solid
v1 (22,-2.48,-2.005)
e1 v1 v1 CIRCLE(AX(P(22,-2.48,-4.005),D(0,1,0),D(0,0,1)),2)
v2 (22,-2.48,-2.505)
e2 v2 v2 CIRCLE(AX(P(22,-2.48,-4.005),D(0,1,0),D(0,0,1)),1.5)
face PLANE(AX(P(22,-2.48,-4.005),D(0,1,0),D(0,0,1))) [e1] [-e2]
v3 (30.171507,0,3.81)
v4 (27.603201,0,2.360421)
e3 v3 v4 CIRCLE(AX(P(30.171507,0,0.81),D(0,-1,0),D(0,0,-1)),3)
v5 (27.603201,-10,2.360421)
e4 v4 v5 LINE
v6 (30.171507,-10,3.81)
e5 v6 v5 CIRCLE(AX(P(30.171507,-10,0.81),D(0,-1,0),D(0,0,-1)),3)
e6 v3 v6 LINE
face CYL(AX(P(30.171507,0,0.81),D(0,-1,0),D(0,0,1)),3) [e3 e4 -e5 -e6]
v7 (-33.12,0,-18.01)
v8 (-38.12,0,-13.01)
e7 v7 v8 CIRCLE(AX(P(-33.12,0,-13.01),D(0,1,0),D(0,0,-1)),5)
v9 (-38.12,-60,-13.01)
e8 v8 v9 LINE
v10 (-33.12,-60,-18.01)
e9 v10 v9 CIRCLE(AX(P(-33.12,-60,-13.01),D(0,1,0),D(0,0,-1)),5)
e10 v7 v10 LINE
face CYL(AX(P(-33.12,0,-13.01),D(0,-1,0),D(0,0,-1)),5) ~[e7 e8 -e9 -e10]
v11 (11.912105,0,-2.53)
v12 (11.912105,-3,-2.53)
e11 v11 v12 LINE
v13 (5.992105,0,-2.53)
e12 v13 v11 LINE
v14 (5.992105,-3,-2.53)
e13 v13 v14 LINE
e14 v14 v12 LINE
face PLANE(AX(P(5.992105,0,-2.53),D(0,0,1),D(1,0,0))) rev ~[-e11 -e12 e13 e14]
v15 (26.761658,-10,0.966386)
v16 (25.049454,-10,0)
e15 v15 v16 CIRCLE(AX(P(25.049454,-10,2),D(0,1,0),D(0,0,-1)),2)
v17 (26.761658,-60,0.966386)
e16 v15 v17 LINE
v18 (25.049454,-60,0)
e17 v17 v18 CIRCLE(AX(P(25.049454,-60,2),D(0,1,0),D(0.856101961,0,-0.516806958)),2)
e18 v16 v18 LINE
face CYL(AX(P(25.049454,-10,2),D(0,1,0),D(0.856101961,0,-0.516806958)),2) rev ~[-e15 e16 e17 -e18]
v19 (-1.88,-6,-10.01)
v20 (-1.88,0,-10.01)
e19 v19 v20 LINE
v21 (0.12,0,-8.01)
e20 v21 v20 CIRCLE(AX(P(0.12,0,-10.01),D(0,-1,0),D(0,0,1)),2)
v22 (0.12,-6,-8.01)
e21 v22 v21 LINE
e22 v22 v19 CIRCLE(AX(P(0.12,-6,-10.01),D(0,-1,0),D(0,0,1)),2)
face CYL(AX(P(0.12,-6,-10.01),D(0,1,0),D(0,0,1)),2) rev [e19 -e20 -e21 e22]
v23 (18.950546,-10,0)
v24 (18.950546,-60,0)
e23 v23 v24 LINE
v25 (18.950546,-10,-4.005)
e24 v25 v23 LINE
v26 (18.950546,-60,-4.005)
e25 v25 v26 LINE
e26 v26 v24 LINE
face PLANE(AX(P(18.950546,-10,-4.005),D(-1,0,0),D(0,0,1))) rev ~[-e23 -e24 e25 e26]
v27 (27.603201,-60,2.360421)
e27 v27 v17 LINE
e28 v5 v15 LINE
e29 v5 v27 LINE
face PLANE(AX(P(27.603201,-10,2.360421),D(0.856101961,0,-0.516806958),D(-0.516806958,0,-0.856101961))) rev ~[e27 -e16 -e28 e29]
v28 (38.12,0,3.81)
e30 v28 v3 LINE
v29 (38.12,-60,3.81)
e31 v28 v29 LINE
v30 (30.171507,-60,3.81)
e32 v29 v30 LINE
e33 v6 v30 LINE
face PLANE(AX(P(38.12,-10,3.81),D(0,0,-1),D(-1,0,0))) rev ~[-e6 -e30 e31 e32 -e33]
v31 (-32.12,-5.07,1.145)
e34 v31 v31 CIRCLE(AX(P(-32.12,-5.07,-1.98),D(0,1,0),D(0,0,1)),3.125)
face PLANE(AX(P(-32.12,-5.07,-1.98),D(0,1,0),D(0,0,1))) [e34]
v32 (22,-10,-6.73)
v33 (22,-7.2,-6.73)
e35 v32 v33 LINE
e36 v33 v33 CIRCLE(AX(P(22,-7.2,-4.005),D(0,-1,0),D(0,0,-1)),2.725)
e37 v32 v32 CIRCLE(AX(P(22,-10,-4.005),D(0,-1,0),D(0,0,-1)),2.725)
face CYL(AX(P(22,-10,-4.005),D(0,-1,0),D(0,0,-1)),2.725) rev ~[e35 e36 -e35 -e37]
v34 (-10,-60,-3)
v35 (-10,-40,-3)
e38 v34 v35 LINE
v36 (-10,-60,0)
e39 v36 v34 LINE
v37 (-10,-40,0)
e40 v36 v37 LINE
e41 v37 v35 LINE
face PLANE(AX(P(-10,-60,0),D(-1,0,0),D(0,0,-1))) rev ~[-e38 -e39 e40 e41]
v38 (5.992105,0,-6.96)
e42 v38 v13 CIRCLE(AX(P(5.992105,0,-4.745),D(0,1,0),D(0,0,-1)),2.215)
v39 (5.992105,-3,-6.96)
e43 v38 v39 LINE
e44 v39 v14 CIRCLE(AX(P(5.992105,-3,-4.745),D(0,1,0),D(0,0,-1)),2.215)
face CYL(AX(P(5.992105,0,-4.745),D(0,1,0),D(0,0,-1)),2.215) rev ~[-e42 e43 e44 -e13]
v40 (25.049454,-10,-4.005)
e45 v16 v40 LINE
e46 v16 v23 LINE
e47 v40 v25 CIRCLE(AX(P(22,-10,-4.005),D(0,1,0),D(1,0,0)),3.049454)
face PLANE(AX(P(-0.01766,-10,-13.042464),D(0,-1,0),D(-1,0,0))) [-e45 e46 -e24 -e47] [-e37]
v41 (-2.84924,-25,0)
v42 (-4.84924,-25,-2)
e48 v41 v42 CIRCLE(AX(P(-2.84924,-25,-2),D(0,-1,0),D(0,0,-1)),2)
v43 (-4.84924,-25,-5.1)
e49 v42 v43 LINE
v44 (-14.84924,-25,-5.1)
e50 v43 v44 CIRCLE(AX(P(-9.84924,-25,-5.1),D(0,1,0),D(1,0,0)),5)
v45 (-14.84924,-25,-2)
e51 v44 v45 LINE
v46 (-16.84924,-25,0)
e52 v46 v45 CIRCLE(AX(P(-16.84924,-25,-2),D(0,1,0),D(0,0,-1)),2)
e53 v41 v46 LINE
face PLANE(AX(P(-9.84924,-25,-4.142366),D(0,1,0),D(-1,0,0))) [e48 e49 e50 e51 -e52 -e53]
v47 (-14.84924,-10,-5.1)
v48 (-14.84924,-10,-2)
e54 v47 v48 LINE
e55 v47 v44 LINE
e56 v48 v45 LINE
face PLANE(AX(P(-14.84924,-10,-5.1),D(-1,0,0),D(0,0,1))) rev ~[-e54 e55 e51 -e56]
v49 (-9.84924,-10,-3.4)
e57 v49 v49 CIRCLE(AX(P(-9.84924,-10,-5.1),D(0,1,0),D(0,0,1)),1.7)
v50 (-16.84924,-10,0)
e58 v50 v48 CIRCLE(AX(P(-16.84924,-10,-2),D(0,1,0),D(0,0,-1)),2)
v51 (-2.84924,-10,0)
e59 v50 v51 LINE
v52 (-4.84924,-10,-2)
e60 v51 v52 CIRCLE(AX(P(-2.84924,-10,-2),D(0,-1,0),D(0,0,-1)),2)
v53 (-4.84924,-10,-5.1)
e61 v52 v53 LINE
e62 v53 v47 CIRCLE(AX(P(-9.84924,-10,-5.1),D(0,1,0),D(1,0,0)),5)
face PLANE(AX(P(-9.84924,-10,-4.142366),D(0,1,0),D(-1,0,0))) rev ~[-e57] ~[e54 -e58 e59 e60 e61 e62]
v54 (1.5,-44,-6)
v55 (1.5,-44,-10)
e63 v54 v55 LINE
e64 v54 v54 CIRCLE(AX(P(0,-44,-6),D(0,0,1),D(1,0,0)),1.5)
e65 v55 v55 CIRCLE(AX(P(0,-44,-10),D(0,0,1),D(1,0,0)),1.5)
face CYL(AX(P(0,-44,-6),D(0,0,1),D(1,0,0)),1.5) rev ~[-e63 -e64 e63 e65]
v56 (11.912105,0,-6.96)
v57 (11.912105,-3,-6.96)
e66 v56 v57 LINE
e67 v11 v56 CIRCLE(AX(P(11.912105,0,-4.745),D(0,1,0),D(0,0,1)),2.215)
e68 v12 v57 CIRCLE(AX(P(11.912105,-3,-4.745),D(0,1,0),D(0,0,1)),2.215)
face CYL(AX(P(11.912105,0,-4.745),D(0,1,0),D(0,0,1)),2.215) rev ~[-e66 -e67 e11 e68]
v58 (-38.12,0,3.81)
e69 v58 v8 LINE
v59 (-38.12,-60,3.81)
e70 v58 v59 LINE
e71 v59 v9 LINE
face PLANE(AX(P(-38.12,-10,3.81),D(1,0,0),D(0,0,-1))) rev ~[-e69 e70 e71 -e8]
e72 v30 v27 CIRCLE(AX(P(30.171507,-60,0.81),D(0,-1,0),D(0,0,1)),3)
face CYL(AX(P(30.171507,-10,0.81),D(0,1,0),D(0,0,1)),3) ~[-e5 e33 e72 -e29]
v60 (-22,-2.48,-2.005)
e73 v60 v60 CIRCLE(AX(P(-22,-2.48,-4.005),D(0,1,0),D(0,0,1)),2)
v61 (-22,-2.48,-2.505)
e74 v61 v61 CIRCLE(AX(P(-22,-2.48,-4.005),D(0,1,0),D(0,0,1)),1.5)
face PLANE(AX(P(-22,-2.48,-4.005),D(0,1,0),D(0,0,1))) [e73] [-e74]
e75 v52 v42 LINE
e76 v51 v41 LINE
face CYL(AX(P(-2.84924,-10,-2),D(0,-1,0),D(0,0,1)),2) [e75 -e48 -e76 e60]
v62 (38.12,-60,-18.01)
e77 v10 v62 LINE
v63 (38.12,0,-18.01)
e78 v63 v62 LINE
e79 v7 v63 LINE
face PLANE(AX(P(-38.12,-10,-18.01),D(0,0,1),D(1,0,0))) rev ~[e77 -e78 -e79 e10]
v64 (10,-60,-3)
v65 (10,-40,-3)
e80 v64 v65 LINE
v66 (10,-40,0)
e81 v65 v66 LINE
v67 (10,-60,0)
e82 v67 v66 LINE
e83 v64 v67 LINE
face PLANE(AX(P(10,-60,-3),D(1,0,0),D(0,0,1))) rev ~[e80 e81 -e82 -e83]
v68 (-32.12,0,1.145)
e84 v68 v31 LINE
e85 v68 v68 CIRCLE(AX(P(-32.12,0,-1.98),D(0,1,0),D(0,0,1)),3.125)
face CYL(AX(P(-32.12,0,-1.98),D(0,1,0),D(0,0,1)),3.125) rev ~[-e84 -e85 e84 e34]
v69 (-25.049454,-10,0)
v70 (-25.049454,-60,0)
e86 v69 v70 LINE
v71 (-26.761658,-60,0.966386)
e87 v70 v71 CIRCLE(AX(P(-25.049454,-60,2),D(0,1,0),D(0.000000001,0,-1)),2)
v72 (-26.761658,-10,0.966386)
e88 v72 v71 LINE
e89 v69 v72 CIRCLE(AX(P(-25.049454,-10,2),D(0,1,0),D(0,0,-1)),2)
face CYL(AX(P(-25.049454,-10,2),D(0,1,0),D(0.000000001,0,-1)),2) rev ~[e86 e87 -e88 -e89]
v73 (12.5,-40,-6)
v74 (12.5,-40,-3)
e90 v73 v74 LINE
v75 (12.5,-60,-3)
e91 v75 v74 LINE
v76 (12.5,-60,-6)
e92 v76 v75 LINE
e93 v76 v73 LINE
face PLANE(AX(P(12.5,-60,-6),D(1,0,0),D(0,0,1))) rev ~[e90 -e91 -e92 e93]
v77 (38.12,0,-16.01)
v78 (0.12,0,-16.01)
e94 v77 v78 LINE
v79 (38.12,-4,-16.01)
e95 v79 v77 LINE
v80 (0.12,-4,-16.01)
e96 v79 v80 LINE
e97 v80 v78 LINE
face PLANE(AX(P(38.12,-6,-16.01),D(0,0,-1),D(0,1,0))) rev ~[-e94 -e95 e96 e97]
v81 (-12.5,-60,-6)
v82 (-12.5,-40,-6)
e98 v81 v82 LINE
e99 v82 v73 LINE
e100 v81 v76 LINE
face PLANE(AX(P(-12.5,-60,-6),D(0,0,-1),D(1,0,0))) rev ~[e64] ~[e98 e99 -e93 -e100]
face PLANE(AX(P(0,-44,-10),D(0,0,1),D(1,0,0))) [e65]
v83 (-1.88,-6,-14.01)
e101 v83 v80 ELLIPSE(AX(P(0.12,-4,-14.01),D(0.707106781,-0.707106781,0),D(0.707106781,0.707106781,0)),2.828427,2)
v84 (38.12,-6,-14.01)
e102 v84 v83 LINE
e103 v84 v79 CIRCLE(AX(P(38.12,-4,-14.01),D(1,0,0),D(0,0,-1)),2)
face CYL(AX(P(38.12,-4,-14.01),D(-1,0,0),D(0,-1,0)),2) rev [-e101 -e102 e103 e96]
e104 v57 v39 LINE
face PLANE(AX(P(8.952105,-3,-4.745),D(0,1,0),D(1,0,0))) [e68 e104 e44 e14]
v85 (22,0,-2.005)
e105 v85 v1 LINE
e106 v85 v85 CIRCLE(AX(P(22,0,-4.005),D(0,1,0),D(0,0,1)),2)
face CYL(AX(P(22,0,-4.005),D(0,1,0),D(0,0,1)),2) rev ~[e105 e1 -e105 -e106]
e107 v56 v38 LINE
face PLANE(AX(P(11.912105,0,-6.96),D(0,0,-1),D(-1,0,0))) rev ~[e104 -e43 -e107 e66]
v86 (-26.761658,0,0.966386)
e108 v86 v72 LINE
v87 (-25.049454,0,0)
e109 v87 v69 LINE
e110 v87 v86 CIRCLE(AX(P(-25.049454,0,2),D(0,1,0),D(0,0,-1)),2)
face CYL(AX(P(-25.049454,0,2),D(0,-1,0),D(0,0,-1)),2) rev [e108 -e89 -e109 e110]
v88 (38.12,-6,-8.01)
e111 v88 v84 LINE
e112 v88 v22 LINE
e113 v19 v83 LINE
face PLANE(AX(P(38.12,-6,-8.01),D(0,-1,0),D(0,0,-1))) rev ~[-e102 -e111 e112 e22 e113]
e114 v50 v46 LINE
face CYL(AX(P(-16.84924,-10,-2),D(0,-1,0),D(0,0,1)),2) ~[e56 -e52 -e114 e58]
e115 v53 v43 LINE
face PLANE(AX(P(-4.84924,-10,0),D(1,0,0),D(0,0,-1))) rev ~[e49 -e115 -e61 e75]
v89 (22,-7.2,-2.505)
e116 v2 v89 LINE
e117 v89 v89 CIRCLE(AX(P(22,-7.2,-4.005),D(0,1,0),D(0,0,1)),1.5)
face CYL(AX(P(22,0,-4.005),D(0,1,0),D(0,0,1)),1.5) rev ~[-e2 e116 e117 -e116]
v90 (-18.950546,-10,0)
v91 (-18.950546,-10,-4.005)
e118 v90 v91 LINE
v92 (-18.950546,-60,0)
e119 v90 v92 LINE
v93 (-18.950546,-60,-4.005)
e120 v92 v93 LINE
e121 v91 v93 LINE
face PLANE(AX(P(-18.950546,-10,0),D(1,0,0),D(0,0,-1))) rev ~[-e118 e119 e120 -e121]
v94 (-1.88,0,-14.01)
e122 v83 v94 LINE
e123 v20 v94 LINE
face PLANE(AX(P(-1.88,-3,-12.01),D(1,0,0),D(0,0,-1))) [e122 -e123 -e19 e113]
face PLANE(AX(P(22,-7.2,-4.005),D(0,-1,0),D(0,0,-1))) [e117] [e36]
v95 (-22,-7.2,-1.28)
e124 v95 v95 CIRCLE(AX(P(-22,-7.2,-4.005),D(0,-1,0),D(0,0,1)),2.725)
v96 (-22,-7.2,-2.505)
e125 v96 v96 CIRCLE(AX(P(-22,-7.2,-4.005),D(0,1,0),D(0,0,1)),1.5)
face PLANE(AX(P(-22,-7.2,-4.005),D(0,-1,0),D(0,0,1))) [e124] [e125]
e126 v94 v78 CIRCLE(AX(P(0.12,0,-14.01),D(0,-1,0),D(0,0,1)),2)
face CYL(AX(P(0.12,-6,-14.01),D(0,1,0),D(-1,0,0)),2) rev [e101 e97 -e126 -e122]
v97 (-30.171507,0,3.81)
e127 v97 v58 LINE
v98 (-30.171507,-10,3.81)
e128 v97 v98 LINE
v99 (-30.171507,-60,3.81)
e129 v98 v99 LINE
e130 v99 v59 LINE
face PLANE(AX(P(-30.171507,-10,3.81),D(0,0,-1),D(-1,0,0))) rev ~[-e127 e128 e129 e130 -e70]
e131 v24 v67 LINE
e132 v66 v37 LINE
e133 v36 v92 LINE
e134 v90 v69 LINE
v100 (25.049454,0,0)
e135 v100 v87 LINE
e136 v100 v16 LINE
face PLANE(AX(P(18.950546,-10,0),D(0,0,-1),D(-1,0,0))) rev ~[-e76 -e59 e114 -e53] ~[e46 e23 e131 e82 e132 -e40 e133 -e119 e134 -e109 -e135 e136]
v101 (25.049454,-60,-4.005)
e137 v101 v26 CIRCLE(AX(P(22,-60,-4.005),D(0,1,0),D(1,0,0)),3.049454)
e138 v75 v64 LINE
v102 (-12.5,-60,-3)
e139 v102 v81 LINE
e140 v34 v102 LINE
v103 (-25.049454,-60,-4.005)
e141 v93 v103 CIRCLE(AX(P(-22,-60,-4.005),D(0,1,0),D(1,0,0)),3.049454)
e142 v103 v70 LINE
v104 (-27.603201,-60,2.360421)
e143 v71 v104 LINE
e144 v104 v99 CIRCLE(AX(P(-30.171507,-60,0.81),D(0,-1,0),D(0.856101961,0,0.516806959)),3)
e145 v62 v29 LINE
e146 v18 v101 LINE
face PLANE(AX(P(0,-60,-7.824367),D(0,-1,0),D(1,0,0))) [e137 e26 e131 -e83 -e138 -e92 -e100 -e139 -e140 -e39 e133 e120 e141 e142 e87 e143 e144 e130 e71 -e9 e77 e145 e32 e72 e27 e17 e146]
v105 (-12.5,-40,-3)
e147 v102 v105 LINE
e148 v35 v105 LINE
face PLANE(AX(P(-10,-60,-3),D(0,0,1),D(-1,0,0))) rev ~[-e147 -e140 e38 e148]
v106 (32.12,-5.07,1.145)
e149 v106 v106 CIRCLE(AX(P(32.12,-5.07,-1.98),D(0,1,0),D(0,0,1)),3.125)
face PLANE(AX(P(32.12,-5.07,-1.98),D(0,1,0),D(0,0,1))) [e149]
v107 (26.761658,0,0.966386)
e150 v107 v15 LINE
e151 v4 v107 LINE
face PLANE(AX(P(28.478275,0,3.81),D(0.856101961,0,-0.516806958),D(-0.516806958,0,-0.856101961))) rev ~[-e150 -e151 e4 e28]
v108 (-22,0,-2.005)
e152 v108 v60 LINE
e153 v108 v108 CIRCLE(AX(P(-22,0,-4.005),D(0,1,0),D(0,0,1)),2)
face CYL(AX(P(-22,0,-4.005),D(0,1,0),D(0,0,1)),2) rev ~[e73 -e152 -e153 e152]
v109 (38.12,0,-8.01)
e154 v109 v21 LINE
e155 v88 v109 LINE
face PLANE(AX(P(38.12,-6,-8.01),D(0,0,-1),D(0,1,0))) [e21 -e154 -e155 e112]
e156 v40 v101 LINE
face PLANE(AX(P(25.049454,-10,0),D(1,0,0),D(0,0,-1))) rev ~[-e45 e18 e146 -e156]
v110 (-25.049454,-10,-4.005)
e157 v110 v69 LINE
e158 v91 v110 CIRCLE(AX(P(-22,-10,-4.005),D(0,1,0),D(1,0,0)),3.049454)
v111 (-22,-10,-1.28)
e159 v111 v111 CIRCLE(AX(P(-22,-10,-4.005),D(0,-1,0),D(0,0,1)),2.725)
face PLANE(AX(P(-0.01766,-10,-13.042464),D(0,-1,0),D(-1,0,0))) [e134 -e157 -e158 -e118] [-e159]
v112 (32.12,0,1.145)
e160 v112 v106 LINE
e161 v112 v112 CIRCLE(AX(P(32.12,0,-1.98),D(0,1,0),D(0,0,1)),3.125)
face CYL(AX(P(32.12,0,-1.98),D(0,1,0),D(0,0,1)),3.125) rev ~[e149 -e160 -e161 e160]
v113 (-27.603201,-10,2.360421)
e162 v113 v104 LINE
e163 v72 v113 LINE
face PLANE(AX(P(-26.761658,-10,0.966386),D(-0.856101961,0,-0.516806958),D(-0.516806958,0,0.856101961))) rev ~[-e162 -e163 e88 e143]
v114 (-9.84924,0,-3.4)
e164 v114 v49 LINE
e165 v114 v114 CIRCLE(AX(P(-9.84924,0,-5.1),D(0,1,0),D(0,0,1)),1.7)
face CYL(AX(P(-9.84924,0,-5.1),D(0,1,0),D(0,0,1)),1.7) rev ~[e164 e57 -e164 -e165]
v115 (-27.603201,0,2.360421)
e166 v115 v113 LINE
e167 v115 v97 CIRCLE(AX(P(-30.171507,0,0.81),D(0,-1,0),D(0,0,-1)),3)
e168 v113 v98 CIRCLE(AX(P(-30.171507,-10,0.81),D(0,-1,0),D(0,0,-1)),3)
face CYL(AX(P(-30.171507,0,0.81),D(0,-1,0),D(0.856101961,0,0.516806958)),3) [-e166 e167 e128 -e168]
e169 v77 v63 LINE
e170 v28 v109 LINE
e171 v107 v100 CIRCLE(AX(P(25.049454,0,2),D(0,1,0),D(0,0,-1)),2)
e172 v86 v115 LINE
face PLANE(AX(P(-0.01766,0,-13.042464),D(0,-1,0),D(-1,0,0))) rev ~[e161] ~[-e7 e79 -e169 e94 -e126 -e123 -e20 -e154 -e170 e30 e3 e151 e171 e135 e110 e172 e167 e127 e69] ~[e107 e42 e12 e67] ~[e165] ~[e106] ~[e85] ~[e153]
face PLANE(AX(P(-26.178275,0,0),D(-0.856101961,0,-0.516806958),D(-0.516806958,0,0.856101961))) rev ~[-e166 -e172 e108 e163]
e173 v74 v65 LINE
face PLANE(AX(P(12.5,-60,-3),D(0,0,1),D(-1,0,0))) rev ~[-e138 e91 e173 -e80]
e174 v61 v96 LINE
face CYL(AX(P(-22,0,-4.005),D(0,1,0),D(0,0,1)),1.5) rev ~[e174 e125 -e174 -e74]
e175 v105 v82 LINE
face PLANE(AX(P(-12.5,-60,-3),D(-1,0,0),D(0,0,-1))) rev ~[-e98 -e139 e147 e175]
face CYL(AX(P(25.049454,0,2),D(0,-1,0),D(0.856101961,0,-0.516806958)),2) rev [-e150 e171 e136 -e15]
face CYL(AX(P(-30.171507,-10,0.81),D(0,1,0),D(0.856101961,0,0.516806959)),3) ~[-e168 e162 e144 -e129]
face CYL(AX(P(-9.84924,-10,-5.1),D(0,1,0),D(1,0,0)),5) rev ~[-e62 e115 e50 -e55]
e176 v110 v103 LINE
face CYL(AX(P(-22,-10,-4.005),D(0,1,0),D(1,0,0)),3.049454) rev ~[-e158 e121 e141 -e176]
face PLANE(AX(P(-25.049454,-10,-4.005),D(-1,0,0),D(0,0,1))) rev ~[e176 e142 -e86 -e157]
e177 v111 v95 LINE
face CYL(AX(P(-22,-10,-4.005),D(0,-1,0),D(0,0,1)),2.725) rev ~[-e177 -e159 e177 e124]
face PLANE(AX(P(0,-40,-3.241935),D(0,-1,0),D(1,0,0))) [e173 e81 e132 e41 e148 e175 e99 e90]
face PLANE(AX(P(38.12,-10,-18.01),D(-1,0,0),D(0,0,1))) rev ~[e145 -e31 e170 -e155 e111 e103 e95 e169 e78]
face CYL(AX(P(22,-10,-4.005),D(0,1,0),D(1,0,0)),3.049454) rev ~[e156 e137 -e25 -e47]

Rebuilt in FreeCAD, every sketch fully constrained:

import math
import FreeCAD as App
import Part
import Sketcher
from FreeCAD import Vector


def edges_at(feature, points):
    """Names of the edges that pass closest to the given points."""
    edges = feature.Shape.Edges
    near = lambda p: min(range(len(edges)), key=lambda i: edges[i].distToShape(Part.Vertex(*p))[0])
    return sorted({f"Edge{near(p) + 1}" for p in points})


def add_polygon(sketch, points):
    """Adds a closed chain of lines whose ends are joined by coincident constraints."""
    first, n = sketch.GeometryCount, len(points)
    for a, b in zip(points, points[1:] + points[:1]):
        sketch.addGeometry(Part.LineSegment(App.Vector(*a, 0), App.Vector(*b, 0)), False)
    for i in range(n):
        sketch.addConstraint(Sketcher.Constraint("Coincident", first + i, 2, first + (i + 1) % n, 1))

doc = App.newDocument("Part")
body = doc.addObject("PartDesign::Body", "Body")

sketch1 = body.newObject("Sketcher::SketchObject", "Sketch")
sketch1.AttachmentSupport = (doc.getObject("XZ_Plane"), [""])
sketch1.MapMode = "FlatFace"
sketch1.addGeometry([
    Part.ArcOfCircle(Part.Circle(Vector(-9.8, -5.1, 0), Vector(0, 0, 1), 4.2), math.radians(-112), math.radians(-68)),
    Part.ArcOfCircle(Part.Circle(Vector(-16.4, -21.4, 0), Vector(0, 0, 1), 13.4), math.radians(68), math.radians(90)),
    Part.LineSegment(Vector(-16.4, -8, 0), Vector(-38.1, -8, 0)),
    Part.LineSegment(Vector(-38.1, -8, 0), Vector(-38.1, 3.8, 0)),
    Part.LineSegment(Vector(-38.1, 3.8, 0), Vector(-28.5, 3.8, 0)),
    Part.LineSegment(Vector(-28.5, 3.8, 0), Vector(-26.2, 0, 0)),
    Part.LineSegment(Vector(-26.2, 0, 0), Vector(26.2, 0, 0)),
    Part.LineSegment(Vector(26.2, 0, 0), Vector(28.5, 3.8, 0)),
    Part.LineSegment(Vector(28.5, 3.8, 0), Vector(38.1, 3.8, 0)),
    Part.LineSegment(Vector(38.1, 3.8, 0), Vector(38.1, -8, 0)),
    Part.LineSegment(Vector(38.1, -8, 0), Vector(-3.3, -8, 0)),
    Part.ArcOfCircle(Part.Circle(Vector(-3.3, -21.4, 0), Vector(0, 0, 1), 13.4), math.radians(90), math.radians(112)),
], False)
sketch1.addConstraint([
    Sketcher.Constraint("Tangent", 0, 1, 1, 1),
    Sketcher.Constraint("Tangent", 1, 2, 2, 1),
    Sketcher.Constraint("Coincident", 2, 2, 3, 1),
    Sketcher.Constraint("Coincident", 3, 2, 4, 1),
    Sketcher.Constraint("Coincident", 4, 2, 5, 1),
    Sketcher.Constraint("Coincident", 5, 2, 6, 1),
    Sketcher.Constraint("Coincident", 6, 2, 7, 1),
    Sketcher.Constraint("Coincident", 7, 2, 8, 1),
    Sketcher.Constraint("Coincident", 8, 2, 9, 1),
    Sketcher.Constraint("Coincident", 9, 2, 10, 1),
    Sketcher.Constraint("Tangent", 10, 2, 11, 1),
    Sketcher.Constraint("Tangent", 11, 2, 0, 2),
    Sketcher.Constraint("Horizontal", 2),
    Sketcher.Constraint("Vertical", 3),
    Sketcher.Constraint("Horizontal", 4),
    Sketcher.Constraint("Horizontal", 6),
    Sketcher.Constraint("Horizontal", 8),
    Sketcher.Constraint("Vertical", 9),
    Sketcher.Constraint("Horizontal", 10),
    Sketcher.Constraint("Equal", 1, 11),
    Sketcher.Constraint("Symmetric", 5, 2, 6, 2, -1, 1),
    Sketcher.Constraint("Symmetric", 4, 2, 7, 2, -2),
    Sketcher.Constraint("Symmetric", 2, 2, 9, 2, -2),
    Sketcher.Constraint("Radius", 0, 4.18),
    Sketcher.Constraint("DistanceX", 1, 3, 0, 1, 5.0),
    Sketcher.Constraint("DistanceY", 3, 1, 3, 2, 11.82),
    Sketcher.Constraint("DistanceY", 0, 3, -1, 1, 5.1),
    Sketcher.Constraint("DistanceX", 4, 2, 5, 2, 2.3),
    Sketcher.Constraint("DistanceY", 1, 2, -1, 1, 8.01),
    Sketcher.Constraint("DistanceX", 2, 2, -1, 1, 38.12),
    Sketcher.Constraint("DistanceX", 6, 1, 6, 2, 52.35655),
    Sketcher.Constraint("DistanceX", 2, 2, 2, 1, 21.710755),
])
pad1 = body.newObject("PartDesign::Pad", "Pad")
pad1.Profile = sketch1
pad1.Length = 10
doc.recompute()

fillet = body.newObject("PartDesign::Fillet", "Fillet")
fillet.Base = (pad1, edges_at(pad1, [(28.478, -5, 3.81), (-28.478, -5, 3.81)]))
fillet.Radius = 3
doc.recompute()

fillet2 = body.newObject("PartDesign::Fillet", "Fillet001")
fillet2.Base = (fillet, edges_at(fillet, [(26.178, -5, 0), (-26.178, -5, 0)]))
fillet2.Radius = 2

sketch2 = body.newObject("Sketcher::SketchObject", "Sketch001")
sketch2.AttachmentSupport = (doc.getObject("XZ_Plane"), [""])
sketch2.MapMode = "FlatFace"
sketch2.addGeometry([
    Part.Circle(Vector(32.1, -2, 0), Vector(0, 0, 1), 3.1),
    Part.Circle(Vector(-32.1, -2, 0), Vector(0, 0, 1), 3.1),
], False)
sketch2.addConstraint([
    Sketcher.Constraint("Equal", 0, 1),
    Sketcher.Constraint("Symmetric", 0, 3, 1, 3, -2),
    Sketcher.Constraint("Diameter", 0, 6.25),
    Sketcher.Constraint("DistanceX", -1, 1, 0, 3, 32.12),
    Sketcher.Constraint("DistanceY", 0, 3, -1, 1, 1.98),
])
pocket1 = body.newObject("PartDesign::Pocket", "Pocket")
pocket1.Profile = sketch2
pocket1.Length = 5.07
pocket1.Reversed = True

sketch3 = body.newObject("Sketcher::SketchObject", "Sketch002")
sketch3.AttachmentSupport = (doc.getObject("XZ_Plane"), [""])
sketch3.MapMode = "FlatFace"
sketch3.addGeometry(Part.Circle(Vector(-9.8, -5.1, 0), Vector(0, 0, 1), 1.7), False)
sketch3.addConstraint([
    Sketcher.Constraint("Diameter", 0, 3.4),
    Sketcher.Constraint("DistanceY", 0, 3, -1, 1, 5.1),
    Sketcher.Constraint("DistanceX", 0, 3, -1, 1, 9.84924),
])
pocket2 = body.newObject("PartDesign::Pocket", "Pocket001")
pocket2.Profile = sketch3
pocket2.Length = 10
pocket2.Reversed = True

sketch4 = body.newObject("Sketcher::SketchObject", "Sketch003")
sketch4.AttachmentSupport = (doc.getObject("XZ_Plane"), [""])
sketch4.MapMode = "FlatFace"
sketch4.addGeometry([
    Part.LineSegment(Vector(6, -2.5, 0), Vector(11.9, -2.5, 0)),
    Part.ArcOfCircle(Part.Circle(Vector(11.9, -4.7, 0), Vector(0, 0, 1), 2.2), math.radians(-90), math.radians(90)),
    Part.LineSegment(Vector(11.9, -7, 0), Vector(6, -7, 0)),
    Part.ArcOfCircle(Part.Circle(Vector(6, -4.7, 0), Vector(0, 0, 1), 2.2), math.radians(90), math.radians(270)),
], False)
sketch4.addConstraint([
    Sketcher.Constraint("Tangent", 0, 2, 1, 2),
    Sketcher.Constraint("Tangent", 1, 1, 2, 1),
    Sketcher.Constraint("Tangent", 2, 2, 3, 2),
    Sketcher.Constraint("Tangent", 3, 1, 0, 1),
    Sketcher.Constraint("Horizontal", 0),
    Sketcher.Constraint("Horizontal", 2),
    Sketcher.Constraint("Radius", 1, 2.215),
    Sketcher.Constraint("DistanceX", 0, 1, 0, 2, 5.92),
    Sketcher.Constraint("DistanceY", 0, 2, -1, 1, 2.53),
    Sketcher.Constraint("DistanceX", -1, 1, 1, 3, 11.912105),
])
pocket3 = body.newObject("PartDesign::Pocket", "Pocket002")
pocket3.Profile = sketch4
pocket3.Length = 3
pocket3.Reversed = True

sketch5 = body.newObject("Sketcher::SketchObject", "Sketch004")
sketch5.AttachmentSupport = (doc.getObject("XZ_Plane"), [""])
sketch5.MapMode = "FlatFace"
sketch5.addGeometry([
    Part.Circle(Vector(-22, -4, 0), Vector(0, 0, 1), 2),
    Part.Circle(Vector(22, -4, 0), Vector(0, 0, 1), 2),
], False)
sketch5.addConstraint([
    Sketcher.Constraint("Equal", 0, 1),
    Sketcher.Constraint("Symmetric", 0, 3, 1, 3, -2),
    Sketcher.Constraint("Diameter", 0, 4.0),
    Sketcher.Constraint("DistanceX", 0, 3, -1, 1, 22.0),
    Sketcher.Constraint("DistanceY", 0, 3, -1, 1, 4.005),
])
pocket4 = body.newObject("PartDesign::Pocket", "Pocket003")
pocket4.Profile = sketch5
pocket4.Length = 2.48
pocket4.Reversed = True

sketch6 = body.newObject("Sketcher::SketchObject", "Sketch005")
sketch6.AttachmentSupport = (doc.getObject("XZ_Plane"), [""])
sketch6.MapMode = "FlatFace"
sketch6.addGeometry([
    Part.Circle(Vector(-22, -4, 0), Vector(0, 0, 1), 1.5),
    Part.Circle(Vector(22, -4, 0), Vector(0, 0, 1), 1.5),
], False)
sketch6.addConstraint([
    Sketcher.Constraint("Equal", 0, 1),
    Sketcher.Constraint("Symmetric", 0, 3, 1, 3, -2),
    Sketcher.Constraint("Diameter", 0, 3.0),
    Sketcher.Constraint("DistanceX", 0, 3, -1, 1, 22.0),
    Sketcher.Constraint("DistanceY", 0, 3, -1, 1, 4.005),
])
pocket5 = body.newObject("PartDesign::Pocket", "Pocket004")
pocket5.Profile = sketch6
pocket5.Length = 10
pocket5.Reversed = True

sketch7 = body.newObject("Sketcher::SketchObject", "Sketch006")
sketch7.AttachmentSupport = (doc.getObject("XZ_Plane"), [""])
sketch7.MapMode = "FlatFace"
sketch7.AttachmentOffset = App.Placement(Vector(0, 0, 10), App.Rotation())
sketch7.addGeometry([
    Part.Circle(Vector(22, -4, 0), Vector(0, 0, 1), 2.7),
    Part.Circle(Vector(-22, -4, 0), Vector(0, 0, 1), 2.7),
], False)
sketch7.addConstraint([
    Sketcher.Constraint("Equal", 0, 1),
    Sketcher.Constraint("Symmetric", 0, 3, 1, 3, -2),
    Sketcher.Constraint("Diameter", 0, 5.45),
    Sketcher.Constraint("DistanceX", -1, 1, 0, 3, 22.0),
    Sketcher.Constraint("DistanceY", 0, 3, -1, 1, 4.005),
])
pocket6 = body.newObject("PartDesign::Pocket", "Pocket005")
pocket6.Profile = sketch7
pocket6.Length = 2.8

sketch8 = body.newObject("Sketcher::SketchObject", "Sketch007")
sketch8.AttachmentSupport = (doc.getObject("XZ_Plane"), [""])
sketch8.MapMode = "FlatFace"
sketch8.addGeometry([
    Part.LineSegment(Vector(-38.1, -18, 0), Vector(-38.1, -8, 0)),
    Part.LineSegment(Vector(-38.1, -8, 0), Vector(-16.4, -8, 0)),
    Part.ArcOfCircle(Part.Circle(Vector(-16.4, -21.4, 0), Vector(0, 0, 1), 13.4), math.radians(68), math.radians(90)),
    Part.ArcOfCircle(Part.Circle(Vector(-9.8, -5.1, 0), Vector(0, 0, 1), 4.2), math.radians(-112), math.radians(-68)),
    Part.ArcOfCircle(Part.Circle(Vector(-3.3, -21.4, 0), Vector(0, 0, 1), 13.4), math.radians(90), math.radians(112)),
    Part.LineSegment(Vector(-3.3, -8, 0), Vector(38.1, -8, 0)),
    Part.LineSegment(Vector(38.1, -8, 0), Vector(38.1, -18, 0)),
    Part.LineSegment(Vector(38.1, -18, 0), Vector(-38.1, -18, 0)),
], False)
sketch8.addConstraint([
    Sketcher.Constraint("Coincident", 0, 2, 1, 1),
    Sketcher.Constraint("Tangent", 1, 2, 2, 2),
    Sketcher.Constraint("Tangent", 2, 1, 3, 1),
    Sketcher.Constraint("Tangent", 3, 2, 4, 2),
    Sketcher.Constraint("Tangent", 4, 1, 5, 1),
    Sketcher.Constraint("Coincident", 5, 2, 6, 1),
    Sketcher.Constraint("Coincident", 6, 2, 7, 1),
    Sketcher.Constraint("Coincident", 7, 2, 0, 1),
    Sketcher.Constraint("Vertical", 0),
    Sketcher.Constraint("Horizontal", 1),
    Sketcher.Constraint("Horizontal", 5),
    Sketcher.Constraint("Vertical", 6),
    Sketcher.Constraint("Horizontal", 7),
    Sketcher.Constraint("Equal", 2, 4),
    Sketcher.Constraint("Symmetric", 0, 2, 5, 2, -2),
    Sketcher.Constraint("DistanceY", 0, 1, 0, 2, 10.0),
    Sketcher.Constraint("Radius", 3, 4.18),
    Sketcher.Constraint("DistanceX", 1, 2, 2, 1, 5.0),
    Sketcher.Constraint("DistanceX", 7, 2, 7, 1, 76.24),
    Sketcher.Constraint("DistanceY", 3, 3, -1, 1, 5.1),
    Sketcher.Constraint("DistanceY", 0, 2, -1, 1, 8.01),
    Sketcher.Constraint("DistanceX", 1, 1, 1, 2, 21.710755),
])
pad2 = body.newObject("PartDesign::Pad", "Pad001")
pad2.Profile = sketch8
pad2.Length = 10

sketch9 = body.newObject("Sketcher::SketchObject", "Sketch008")
sketch9.AttachmentSupport = (doc.getObject("XZ_Plane"), [""])
sketch9.MapMode = "FlatFace"
sketch9.AttachmentOffset = App.Placement(Vector(0, 0, 10), App.Rotation())
sketch9.addGeometry([
    Part.LineSegment(Vector(19, 0, 0), Vector(-19, 0, 0)),
    Part.LineSegment(Vector(-19, 0, 0), Vector(-19, -4, 0)),
    Part.ArcOfCircle(Part.Circle(Vector(-22, -4, 0), Vector(0, 0, 1), 3), math.radians(180), math.radians(360)),
    Part.LineSegment(Vector(-25, -4, 0), Vector(-25, 0, 0)),
    Part.ArcOfCircle(Part.Circle(Vector(-25, 2, 0), Vector(0, 0, 1), 2), math.radians(-149), math.radians(-90)),
    Part.LineSegment(Vector(-26.8, 1, 0), Vector(-27.6, 2.4, 0)),
    Part.ArcOfCircle(Part.Circle(Vector(-30.2, 0.8, 0), Vector(0, 0, 1), 3), math.radians(31), math.radians(90)),
    Part.LineSegment(Vector(-30.2, 3.8, 0), Vector(-38.1, 3.8, 0)),
    Part.LineSegment(Vector(-38.1, 3.8, 0), Vector(-38.1, -18, 0)),
    Part.LineSegment(Vector(-38.1, -18, 0), Vector(38.1, -18, 0)),
    Part.LineSegment(Vector(38.1, -18, 0), Vector(38.1, 3.8, 0)),
    Part.LineSegment(Vector(38.1, 3.8, 0), Vector(30.2, 3.8, 0)),
    Part.ArcOfCircle(Part.Circle(Vector(30.2, 0.8, 0), Vector(0, 0, 1), 3), math.radians(90), math.radians(149)),
    Part.LineSegment(Vector(27.6, 2.4, 0), Vector(26.8, 1, 0)),
    Part.ArcOfCircle(Part.Circle(Vector(25, 2, 0), Vector(0, 0, 1), 2), math.radians(-90), math.radians(-31)),
    Part.LineSegment(Vector(25, 0, 0), Vector(25, -4, 0)),
    Part.ArcOfCircle(Part.Circle(Vector(22, -4, 0), Vector(0, 0, 1), 3), math.radians(180), math.radians(360)),
    Part.LineSegment(Vector(19, -4, 0), Vector(19, 0, 0)),
], False)
sketch9.addConstraint([
    Sketcher.Constraint("Coincident", 0, 2, 1, 1),
    Sketcher.Constraint("Tangent", 1, 2, 2, 2),
    Sketcher.Constraint("Tangent", 2, 1, 3, 1),
    Sketcher.Constraint("Coincident", 3, 2, 4, 2),
    Sketcher.Constraint("Tangent", 4, 1, 5, 1),
    Sketcher.Constraint("Tangent", 5, 2, 6, 1),
    Sketcher.Constraint("Tangent", 6, 2, 7, 1),
    Sketcher.Constraint("Coincident", 7, 2, 8, 1),
    Sketcher.Constraint("Coincident", 8, 2, 9, 1),
    Sketcher.Constraint("Coincident", 9, 2, 10, 1),
    Sketcher.Constraint("Coincident", 10, 2, 11, 1),
    Sketcher.Constraint("Tangent", 11, 2, 12, 1),
    Sketcher.Constraint("Tangent", 12, 2, 13, 1),
    Sketcher.Constraint("Tangent", 13, 2, 14, 2),
    Sketcher.Constraint("Coincident", 14, 1, 15, 1),
    Sketcher.Constraint("Tangent", 15, 2, 16, 2),
    Sketcher.Constraint("Tangent", 16, 1, 17, 1),
    Sketcher.Constraint("Coincident", 17, 2, 0, 1),
    Sketcher.Constraint("Horizontal", 0),
    Sketcher.Constraint("Vertical", 1),
    Sketcher.Constraint("Vertical", 3),
    Sketcher.Constraint("Horizontal", 7),
    Sketcher.Constraint("Vertical", 8),
    Sketcher.Constraint("Horizontal", 9),
    Sketcher.Constraint("Vertical", 10),
    Sketcher.Constraint("Horizontal", 11),
    Sketcher.Constraint("Vertical", 15),
    Sketcher.Constraint("Vertical", 17),
    Sketcher.Constraint("Equal", 6, 12),
    Sketcher.Constraint("Equal", 4, 14),
    Sketcher.Constraint("Equal", 2, 16),
    Sketcher.Constraint("Symmetric", 3, 2, 14, 1, -1, 1),
    Sketcher.Constraint("Symmetric", 6, 3, 12, 3, -2),
    Sketcher.Constraint("Symmetric", 4, 3, 14, 3, -2),
    Sketcher.Constraint("PointOnObject", 0, 2, -1),
    Sketcher.Constraint("Horizontal", 2, 3, 16, 3),
    Sketcher.Constraint("Vertical", 4, 3, 2, 1),
    Sketcher.Constraint("Equal", 7, 11),
    Sketcher.Constraint("Radius", 4, 2.0),
    Sketcher.Constraint("Radius", 6, 3.0),
    Sketcher.Constraint("DistanceX", 2, 3, -1, 1, 22.0),
    Sketcher.Constraint("DistanceX", 9, 1, 9, 2, 76.24),
    Sketcher.Constraint("DistanceY", 8, 2, 8, 1, 21.82),
    Sketcher.Constraint("DistanceY", 1, 2, 1, 1, 4.005),
    Sketcher.Constraint("DistanceY", -1, 1, 6, 3, 0.81),
    Sketcher.Constraint("Radius", 2, 3.049454),
    Sketcher.Constraint("DistanceX", 5, 2, -1, 1, 27.603201),
])
pad3 = body.newObject("PartDesign::Pad", "Pad002")
pad3.Profile = sketch9
pad3.Length = 50
doc.recompute()

fillet3 = body.newObject("PartDesign::Fillet", "Fillet002")
fillet3.Base = (pad3, edges_at(pad3, [(-38.12, -30, -18.01)]))
fillet3.Radius = 5

sketch10 = body.newObject("Sketcher::SketchObject", "Sketch009")
sketch10.AttachmentSupport = (doc.getObject("XZ_Plane"), [""])
sketch10.MapMode = "FlatFace"
sketch10.AttachmentOffset = App.Placement(Vector(0, 0, 10), App.Rotation())
sketch10.addGeometry([
    Part.LineSegment(Vector(-5, -5, 0), Vector(-5, 0, 0)),
    Part.LineSegment(Vector(-5, 0, 0), Vector(-15, 0, 0)),
    Part.LineSegment(Vector(-15, 0, 0), Vector(-15, -5, 0)),
    Part.ArcOfCircle(Part.Circle(Vector(-10, -5, 0), Vector(0, 0, 1), 5), math.radians(180), math.radians(360)),
], False)
sketch10.addConstraint([
    Sketcher.Constraint("Coincident", 0, 2, 1, 1),
    Sketcher.Constraint("Coincident", 1, 2, 2, 1),
    Sketcher.Constraint("Tangent", 2, 2, 3, 1),
    Sketcher.Constraint("Tangent", 3, 2, 0, 1),
    Sketcher.Constraint("Vertical", 0),
    Sketcher.Constraint("Horizontal", 1),
    Sketcher.Constraint("Vertical", 2),
    Sketcher.Constraint("PointOnObject", 0, 2, -1),
    Sketcher.Constraint("Radius", 3, 5.0),
    Sketcher.Constraint("DistanceY", 0, 1, 0, 2, 5.1),
    Sketcher.Constraint("DistanceX", 3, 3, -1, 1, 9.84924),
])
pocket7 = body.newObject("PartDesign::Pocket", "Pocket006")
pocket7.Profile = sketch10
pocket7.Length = 15
pocket7.Reversed = True

sketch11 = body.newObject("Sketcher::SketchObject", "Sketch010")
sketch11.AttachmentSupport = (doc.getObject("YZ_Plane"), [""])
sketch11.MapMode = "FlatFace"
sketch11.AttachmentOffset = App.Placement(Vector(0, 0, 38.12), App.Rotation())
add_polygon(sketch11, [(0, -8), (-6, -8), (-6, -16), (0, -16)])
sketch11.addConstraint([
    Sketcher.Constraint("Horizontal", 0),
    Sketcher.Constraint("Vertical", 1),
    Sketcher.Constraint("Horizontal", 2),
    Sketcher.Constraint("Vertical", 3),
    Sketcher.Constraint("PointOnObject", 2, 2, -2),
    Sketcher.Constraint("DistanceX", 0, 2, 0, 1, 6.0),
    Sketcher.Constraint("DistanceY", 1, 2, 1, 1, 8.0),
    Sketcher.Constraint("DistanceY", 0, 2, -1, 1, 8.01),
])
pocket8 = body.newObject("PartDesign::Pocket", "Pocket007")
pocket8.Profile = sketch11
pocket8.Length = 40
doc.recompute()

fillet4 = body.newObject("PartDesign::Fillet", "Fillet003")
fillet4.Base = (pocket8, edges_at(pocket8, [(-4.849, -17.5, 0), (-14.849, -17.5, 0)]))
fillet4.Radius = 2
doc.recompute()

fillet5 = body.newObject("PartDesign::Fillet", "Fillet004")
fillet5.Base = (fillet4, edges_at(fillet4, [(-1.88, -3, -16.01), (18.12, -6, -16.01), (-1.88, -3, -8.01)]))
fillet5.Radius = 2

sketch12 = body.newObject("Sketcher::SketchObject", "Sketch011")
sketch12.AttachmentSupport = (doc.getObject("XZ_Plane"), [""])
sketch12.MapMode = "FlatFace"
sketch12.AttachmentOffset = App.Placement(Vector(0, 0, 60), App.Rotation())
add_polygon(sketch12, [(-10, 0), (-10, -3), (-12.5, -3), (-12.5, -6), (12.5, -6), (12.5, -3), (10, -3), (10, 0)])
sketch12.addConstraint([
    Sketcher.Constraint("Vertical", 0),
    Sketcher.Constraint("Horizontal", 1),
    Sketcher.Constraint("Vertical", 2),
    Sketcher.Constraint("Horizontal", 3),
    Sketcher.Constraint("Vertical", 4),
    Sketcher.Constraint("Horizontal", 5),
    Sketcher.Constraint("Vertical", 6),
    Sketcher.Constraint("Horizontal", 7),
    Sketcher.Constraint("Symmetric", 6, 2, 7, 2, -1, 1),
    Sketcher.Constraint("Symmetric", 1, 2, 4, 2, -2),
    Sketcher.Constraint("Equal", 0, 2),
    Sketcher.Constraint("DistanceX", 3, 1, 3, 2, 25.0),
    Sketcher.Constraint("DistanceX", 7, 2, 7, 1, 20.0),
    Sketcher.Constraint("DistanceY", 0, 2, 0, 1, 3.0),
])
pocket9 = body.newObject("PartDesign::Pocket", "Pocket008")
pocket9.Profile = sketch12
pocket9.Length = 20

sketch13 = body.newObject("Sketcher::SketchObject", "Sketch012")
sketch13.AttachmentSupport = (doc.getObject("XY_Plane"), [""])
sketch13.MapMode = "FlatFace"
sketch13.AttachmentOffset = App.Placement(Vector(0, 0, -6), App.Rotation())
sketch13.addGeometry(Part.Circle(Vector(0, -44, 0), Vector(0, 0, 1), 1.5), False)
sketch13.addConstraint([
    Sketcher.Constraint("PointOnObject", 0, 3, -2),
    Sketcher.Constraint("Diameter", 0, 3.0),
    Sketcher.Constraint("DistanceY", 0, 3, -1, 1, 44.0),
])
pocket10 = body.newObject("PartDesign::Pocket", "Pocket009")
pocket10.Profile = sketch13
pocket10.Length = 4

doc.recompute()
